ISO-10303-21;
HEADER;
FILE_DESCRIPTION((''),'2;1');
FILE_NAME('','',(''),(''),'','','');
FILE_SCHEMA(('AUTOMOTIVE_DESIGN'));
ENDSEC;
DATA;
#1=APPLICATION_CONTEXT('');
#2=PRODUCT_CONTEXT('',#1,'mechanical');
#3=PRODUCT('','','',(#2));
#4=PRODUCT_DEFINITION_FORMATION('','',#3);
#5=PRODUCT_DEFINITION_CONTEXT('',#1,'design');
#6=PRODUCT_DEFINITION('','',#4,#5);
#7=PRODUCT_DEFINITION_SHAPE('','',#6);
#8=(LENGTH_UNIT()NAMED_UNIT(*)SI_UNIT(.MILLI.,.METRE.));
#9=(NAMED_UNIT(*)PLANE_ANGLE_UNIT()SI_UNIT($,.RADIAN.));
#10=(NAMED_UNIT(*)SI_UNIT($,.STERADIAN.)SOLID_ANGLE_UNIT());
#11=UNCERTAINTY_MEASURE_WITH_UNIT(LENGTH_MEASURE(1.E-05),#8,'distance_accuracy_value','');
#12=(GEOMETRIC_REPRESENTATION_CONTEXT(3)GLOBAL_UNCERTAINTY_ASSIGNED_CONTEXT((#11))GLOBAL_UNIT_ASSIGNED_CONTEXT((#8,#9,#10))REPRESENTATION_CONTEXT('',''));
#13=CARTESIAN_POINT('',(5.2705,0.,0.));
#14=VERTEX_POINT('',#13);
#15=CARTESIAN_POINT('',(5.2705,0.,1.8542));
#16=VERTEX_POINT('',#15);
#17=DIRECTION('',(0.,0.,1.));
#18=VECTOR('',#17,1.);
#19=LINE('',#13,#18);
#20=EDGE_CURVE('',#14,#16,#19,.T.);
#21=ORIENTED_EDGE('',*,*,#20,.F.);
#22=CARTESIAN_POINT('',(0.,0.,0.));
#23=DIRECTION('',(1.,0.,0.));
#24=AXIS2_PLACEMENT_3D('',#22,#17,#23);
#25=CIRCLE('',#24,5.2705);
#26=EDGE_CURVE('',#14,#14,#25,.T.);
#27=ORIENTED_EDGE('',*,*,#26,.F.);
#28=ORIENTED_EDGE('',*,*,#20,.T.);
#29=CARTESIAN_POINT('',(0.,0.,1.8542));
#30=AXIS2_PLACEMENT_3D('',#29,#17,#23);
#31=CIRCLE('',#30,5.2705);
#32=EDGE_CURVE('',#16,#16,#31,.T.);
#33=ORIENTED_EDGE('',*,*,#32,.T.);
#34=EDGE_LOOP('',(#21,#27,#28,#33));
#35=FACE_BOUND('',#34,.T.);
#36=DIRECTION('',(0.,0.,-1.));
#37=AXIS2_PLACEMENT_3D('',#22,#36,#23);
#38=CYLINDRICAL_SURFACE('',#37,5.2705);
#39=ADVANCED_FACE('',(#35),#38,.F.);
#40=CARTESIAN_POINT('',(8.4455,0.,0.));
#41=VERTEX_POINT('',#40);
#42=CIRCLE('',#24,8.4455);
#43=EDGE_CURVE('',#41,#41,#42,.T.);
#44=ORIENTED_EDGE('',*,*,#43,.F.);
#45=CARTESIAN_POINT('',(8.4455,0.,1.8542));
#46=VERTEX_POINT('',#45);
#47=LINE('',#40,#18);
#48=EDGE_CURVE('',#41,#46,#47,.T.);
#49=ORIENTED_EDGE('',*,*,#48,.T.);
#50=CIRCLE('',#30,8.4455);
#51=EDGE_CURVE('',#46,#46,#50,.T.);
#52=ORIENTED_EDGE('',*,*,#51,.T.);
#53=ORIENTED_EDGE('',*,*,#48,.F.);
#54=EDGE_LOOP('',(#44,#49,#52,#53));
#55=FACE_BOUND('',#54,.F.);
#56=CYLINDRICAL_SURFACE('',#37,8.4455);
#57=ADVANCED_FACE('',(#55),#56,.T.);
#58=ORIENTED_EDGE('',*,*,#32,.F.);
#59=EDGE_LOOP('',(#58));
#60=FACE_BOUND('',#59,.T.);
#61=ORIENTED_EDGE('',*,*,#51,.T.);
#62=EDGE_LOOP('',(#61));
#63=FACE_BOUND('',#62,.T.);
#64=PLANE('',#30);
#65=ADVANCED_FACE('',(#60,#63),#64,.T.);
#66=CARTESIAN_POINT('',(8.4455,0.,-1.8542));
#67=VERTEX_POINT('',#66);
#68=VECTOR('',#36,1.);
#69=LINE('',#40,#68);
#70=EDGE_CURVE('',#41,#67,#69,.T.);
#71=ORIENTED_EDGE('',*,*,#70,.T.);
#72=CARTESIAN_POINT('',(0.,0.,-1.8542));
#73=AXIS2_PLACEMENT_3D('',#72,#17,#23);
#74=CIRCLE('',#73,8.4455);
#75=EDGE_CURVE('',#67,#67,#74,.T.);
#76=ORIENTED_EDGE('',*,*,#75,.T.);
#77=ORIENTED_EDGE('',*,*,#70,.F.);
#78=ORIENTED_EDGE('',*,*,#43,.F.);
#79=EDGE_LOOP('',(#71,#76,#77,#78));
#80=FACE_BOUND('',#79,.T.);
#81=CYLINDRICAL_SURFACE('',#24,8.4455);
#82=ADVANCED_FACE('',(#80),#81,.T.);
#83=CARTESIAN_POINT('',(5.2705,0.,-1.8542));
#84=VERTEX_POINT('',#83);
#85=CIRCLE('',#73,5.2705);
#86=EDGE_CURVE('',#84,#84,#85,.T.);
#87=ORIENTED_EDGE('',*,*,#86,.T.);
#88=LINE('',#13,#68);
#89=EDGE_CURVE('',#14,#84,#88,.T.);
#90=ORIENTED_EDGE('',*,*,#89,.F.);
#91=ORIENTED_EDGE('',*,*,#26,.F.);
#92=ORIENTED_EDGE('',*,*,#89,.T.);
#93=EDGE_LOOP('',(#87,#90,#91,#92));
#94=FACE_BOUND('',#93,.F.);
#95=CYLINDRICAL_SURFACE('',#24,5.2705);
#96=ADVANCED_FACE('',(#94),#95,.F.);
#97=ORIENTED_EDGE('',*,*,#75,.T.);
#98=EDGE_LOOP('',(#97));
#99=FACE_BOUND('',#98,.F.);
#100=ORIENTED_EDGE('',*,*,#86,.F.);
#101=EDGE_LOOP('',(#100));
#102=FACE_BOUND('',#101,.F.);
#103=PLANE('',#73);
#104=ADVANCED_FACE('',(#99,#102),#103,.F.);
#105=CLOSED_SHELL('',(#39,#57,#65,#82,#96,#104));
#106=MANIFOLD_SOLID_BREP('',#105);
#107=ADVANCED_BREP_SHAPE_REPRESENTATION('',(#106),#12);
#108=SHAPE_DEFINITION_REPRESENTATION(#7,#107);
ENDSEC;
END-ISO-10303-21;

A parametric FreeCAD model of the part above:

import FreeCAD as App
import Part
import Sketcher
Q = App.Units.Quantity

doc = App.newDocument("Part")
body = doc.addObject("PartDesign::Body", "Body")

sketch1 = body.newObject("Sketcher::SketchObject", "Sketch")
sketch1.AttachmentSupport = (doc.getObject("XY_Plane"), [""])
sketch1.MapMode = "FlatFace"
sketch1.addGeometry(Part.Circle(App.Vector(0, 0, 0), App.Vector(0, 0, 1), 8.4455), False)
sketch1.addGeometry(Part.Circle(App.Vector(0, 0, 0), App.Vector(0, 0, 1), 5.2705), False)
sketch1.addConstraint(Sketcher.Constraint("Coincident", 0, 3, -1, 1))
sketch1.addConstraint(Sketcher.Constraint("Coincident", 1, 3, -1, 1))
sketch1.addConstraint(Sketcher.Constraint("Diameter", 1, Q("0.415 in")))
sketch1.addConstraint(Sketcher.Constraint("Diameter", 0, Q("0.665 in")))
pad1 = body.newObject("PartDesign::Pad", "Pad")
pad1.Profile = sketch1
pad1.Length = Q("0.146 in")
pad1.Midplane = True

doc.recompute()
